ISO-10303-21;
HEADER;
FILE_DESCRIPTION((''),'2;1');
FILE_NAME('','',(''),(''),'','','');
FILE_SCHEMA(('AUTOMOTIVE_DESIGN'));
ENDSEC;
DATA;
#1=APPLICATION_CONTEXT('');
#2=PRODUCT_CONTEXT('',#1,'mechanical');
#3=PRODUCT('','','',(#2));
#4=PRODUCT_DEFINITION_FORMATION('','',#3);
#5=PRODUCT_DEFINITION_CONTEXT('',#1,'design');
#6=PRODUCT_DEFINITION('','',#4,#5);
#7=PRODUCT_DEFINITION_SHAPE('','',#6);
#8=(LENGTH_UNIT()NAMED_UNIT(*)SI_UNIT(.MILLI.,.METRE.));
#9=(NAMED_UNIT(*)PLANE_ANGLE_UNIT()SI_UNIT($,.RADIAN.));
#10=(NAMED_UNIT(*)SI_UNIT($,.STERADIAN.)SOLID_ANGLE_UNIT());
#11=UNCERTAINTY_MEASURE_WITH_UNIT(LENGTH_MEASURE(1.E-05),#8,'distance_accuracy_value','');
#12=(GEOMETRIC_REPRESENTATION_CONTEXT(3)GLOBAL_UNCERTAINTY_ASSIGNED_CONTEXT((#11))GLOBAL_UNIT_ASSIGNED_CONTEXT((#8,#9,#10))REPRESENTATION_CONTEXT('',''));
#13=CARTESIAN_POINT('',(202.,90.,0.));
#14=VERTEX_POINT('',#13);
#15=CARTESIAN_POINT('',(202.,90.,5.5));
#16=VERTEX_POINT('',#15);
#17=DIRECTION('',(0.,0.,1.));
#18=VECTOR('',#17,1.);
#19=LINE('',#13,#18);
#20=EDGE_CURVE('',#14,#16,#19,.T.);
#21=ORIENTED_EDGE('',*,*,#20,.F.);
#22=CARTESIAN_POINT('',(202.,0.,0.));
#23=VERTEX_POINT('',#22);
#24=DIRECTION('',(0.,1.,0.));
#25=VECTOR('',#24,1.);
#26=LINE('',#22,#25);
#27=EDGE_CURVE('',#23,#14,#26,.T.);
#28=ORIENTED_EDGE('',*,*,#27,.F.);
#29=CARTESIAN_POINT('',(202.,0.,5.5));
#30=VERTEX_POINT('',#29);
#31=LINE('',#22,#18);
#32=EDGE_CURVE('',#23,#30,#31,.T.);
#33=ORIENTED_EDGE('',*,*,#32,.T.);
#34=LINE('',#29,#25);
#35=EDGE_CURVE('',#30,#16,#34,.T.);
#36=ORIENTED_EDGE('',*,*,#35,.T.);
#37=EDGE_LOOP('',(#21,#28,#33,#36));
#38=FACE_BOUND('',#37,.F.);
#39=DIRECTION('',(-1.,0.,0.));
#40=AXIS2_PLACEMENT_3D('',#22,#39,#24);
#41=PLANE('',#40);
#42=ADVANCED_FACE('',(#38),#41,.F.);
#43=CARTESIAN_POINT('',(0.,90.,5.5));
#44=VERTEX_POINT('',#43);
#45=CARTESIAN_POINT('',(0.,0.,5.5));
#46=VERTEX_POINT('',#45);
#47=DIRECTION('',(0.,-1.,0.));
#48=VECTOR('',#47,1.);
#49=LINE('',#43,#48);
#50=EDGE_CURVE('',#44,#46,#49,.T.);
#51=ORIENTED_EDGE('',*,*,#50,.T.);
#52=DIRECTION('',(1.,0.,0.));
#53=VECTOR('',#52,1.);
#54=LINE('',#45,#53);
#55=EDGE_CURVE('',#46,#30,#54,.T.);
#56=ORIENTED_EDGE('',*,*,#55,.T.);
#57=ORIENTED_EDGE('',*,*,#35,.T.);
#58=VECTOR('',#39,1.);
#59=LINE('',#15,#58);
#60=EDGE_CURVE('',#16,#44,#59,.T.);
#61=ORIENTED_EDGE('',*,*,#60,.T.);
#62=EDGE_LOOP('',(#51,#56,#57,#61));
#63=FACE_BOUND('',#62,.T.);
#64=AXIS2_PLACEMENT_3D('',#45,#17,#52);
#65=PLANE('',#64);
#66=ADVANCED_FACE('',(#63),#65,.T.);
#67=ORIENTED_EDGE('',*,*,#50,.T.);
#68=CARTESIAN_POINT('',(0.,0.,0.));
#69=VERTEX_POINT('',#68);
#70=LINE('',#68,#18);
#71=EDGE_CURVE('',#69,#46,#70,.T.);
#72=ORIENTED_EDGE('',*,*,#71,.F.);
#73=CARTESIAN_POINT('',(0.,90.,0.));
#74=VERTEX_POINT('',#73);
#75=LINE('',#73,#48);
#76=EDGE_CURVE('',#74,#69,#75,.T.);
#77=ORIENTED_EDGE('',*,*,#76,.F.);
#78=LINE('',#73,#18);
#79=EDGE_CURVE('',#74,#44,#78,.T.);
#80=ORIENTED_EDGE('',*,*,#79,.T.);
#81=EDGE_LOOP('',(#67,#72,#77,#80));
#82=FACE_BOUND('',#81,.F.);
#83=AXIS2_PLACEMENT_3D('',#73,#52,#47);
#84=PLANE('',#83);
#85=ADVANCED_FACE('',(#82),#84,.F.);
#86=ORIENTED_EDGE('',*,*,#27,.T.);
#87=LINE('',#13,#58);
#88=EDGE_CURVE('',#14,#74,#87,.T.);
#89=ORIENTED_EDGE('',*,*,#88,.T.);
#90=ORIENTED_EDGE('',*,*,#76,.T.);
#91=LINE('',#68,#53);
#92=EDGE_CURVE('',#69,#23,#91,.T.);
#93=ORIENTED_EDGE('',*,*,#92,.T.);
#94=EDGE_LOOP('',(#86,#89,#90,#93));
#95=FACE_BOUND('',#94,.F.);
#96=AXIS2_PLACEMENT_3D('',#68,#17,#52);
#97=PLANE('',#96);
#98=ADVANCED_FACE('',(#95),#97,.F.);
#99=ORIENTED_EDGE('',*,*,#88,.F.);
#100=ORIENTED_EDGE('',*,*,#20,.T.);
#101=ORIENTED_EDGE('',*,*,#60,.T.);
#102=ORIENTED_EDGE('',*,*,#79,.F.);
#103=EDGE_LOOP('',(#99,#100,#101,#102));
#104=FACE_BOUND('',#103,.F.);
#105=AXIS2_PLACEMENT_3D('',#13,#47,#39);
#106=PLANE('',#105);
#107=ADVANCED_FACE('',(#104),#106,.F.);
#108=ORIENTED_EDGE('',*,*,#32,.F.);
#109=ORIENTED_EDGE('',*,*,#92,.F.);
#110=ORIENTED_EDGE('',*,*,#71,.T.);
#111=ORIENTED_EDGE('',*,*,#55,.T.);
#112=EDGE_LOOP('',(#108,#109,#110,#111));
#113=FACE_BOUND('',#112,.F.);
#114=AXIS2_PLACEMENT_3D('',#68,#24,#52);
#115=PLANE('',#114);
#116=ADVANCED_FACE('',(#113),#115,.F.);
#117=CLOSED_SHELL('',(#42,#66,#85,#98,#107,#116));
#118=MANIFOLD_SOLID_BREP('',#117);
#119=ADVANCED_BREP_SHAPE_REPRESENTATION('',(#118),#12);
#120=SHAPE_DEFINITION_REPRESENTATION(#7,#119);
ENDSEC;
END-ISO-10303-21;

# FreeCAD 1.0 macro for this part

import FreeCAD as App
import Part
import Sketcher


def add_polygon(sketch, points):
    """Adds a closed chain of lines whose ends are joined by coincident constraints."""
    first, n = sketch.GeometryCount, len(points)
    for a, b in zip(points, points[1:] + points[:1]):
        sketch.addGeometry(Part.LineSegment(App.Vector(*a, 0), App.Vector(*b, 0)), False)
    for i in range(n):
        sketch.addConstraint(Sketcher.Constraint("Coincident", first + i, 2, first + (i + 1) % n, 1))

doc = App.newDocument("Part")
body = doc.addObject("PartDesign::Body", "Body")

# Sketch on XY plane
sketch1 = body.newObject("Sketcher::SketchObject", "Sketch")
sketch1.AttachmentSupport = (doc.getObject("XY_Plane"), [""])
sketch1.MapMode = "FlatFace"
add_polygon(sketch1, [(0, 90), (0, 0), (202, 0), (202, 90)])  # lines 0-3
sketch1.addConstraint(Sketcher.Constraint("Vertical", 0))
sketch1.addConstraint(Sketcher.Constraint("Horizontal", 1))
sketch1.addConstraint(Sketcher.Constraint("Vertical", 2))
sketch1.addConstraint(Sketcher.Constraint("Horizontal", 3))
sketch1.addConstraint(Sketcher.Constraint("Coincident", 0, 2, -1, 1))
sketch1.addConstraint(Sketcher.Constraint("DistanceX", 1, 1, 1, 2, 202.0))
sketch1.addConstraint(Sketcher.Constraint("DistanceY", 0, 2, 0, 1, 90.0))
pad1 = body.newObject("PartDesign::Pad", "Pad")
pad1.Profile = sketch1
pad1.Length = 5.5

doc.recompute()
